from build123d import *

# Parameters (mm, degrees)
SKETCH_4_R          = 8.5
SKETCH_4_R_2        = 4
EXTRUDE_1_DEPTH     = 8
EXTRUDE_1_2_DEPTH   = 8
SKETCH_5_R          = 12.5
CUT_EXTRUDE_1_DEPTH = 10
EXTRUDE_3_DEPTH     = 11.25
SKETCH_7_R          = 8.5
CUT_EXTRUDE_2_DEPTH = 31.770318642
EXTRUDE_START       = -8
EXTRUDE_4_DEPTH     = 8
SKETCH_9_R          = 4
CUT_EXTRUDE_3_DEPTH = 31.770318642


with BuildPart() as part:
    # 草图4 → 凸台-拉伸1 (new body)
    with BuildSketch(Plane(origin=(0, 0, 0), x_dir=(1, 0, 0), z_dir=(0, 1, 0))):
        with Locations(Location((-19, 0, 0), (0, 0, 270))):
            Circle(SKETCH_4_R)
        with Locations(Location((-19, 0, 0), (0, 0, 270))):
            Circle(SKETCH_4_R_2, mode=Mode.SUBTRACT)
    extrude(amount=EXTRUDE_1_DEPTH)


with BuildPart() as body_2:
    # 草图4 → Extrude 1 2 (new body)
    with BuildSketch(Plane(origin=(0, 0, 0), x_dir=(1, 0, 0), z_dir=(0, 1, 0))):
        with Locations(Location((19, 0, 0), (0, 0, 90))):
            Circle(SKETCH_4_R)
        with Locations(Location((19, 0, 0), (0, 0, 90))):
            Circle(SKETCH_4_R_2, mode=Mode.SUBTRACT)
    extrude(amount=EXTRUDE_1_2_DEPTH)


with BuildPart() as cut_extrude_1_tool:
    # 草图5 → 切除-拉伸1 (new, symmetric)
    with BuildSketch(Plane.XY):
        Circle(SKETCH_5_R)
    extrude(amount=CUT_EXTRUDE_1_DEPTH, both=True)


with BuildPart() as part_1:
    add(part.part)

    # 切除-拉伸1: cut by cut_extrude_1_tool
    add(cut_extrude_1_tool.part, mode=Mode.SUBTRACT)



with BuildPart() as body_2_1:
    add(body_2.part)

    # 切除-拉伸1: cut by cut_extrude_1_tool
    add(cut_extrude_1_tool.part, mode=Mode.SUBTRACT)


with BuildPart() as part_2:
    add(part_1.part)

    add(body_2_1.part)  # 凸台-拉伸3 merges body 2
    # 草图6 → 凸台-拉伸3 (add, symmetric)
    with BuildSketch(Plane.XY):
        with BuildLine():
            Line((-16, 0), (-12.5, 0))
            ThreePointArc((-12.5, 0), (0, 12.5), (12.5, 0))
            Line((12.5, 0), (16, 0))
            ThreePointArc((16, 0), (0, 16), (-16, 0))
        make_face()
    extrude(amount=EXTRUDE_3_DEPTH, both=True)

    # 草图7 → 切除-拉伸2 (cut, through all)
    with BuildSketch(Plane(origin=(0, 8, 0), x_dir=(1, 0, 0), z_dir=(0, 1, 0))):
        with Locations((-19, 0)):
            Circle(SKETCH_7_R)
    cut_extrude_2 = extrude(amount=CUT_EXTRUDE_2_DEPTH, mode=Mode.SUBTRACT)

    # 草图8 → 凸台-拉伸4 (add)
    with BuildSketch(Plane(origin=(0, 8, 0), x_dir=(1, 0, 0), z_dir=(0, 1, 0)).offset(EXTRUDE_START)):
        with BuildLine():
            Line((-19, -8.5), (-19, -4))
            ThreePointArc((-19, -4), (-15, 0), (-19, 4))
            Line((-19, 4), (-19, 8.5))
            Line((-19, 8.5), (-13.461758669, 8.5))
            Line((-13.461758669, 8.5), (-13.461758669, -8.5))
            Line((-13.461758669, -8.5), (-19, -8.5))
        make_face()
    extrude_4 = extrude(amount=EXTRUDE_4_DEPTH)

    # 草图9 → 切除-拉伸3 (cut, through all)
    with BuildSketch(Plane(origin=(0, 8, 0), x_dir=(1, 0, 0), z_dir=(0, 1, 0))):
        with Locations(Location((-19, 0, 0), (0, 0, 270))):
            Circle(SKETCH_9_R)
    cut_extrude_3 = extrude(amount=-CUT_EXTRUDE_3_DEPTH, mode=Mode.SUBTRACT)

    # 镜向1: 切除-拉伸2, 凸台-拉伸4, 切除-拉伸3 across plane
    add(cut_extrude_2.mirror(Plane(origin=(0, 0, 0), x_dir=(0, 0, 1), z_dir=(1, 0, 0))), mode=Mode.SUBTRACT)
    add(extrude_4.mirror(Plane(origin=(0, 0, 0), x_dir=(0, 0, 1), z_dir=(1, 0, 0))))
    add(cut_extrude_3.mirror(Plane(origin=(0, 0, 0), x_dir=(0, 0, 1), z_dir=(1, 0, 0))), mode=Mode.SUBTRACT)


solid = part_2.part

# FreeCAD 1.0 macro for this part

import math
import FreeCAD as App
import Part
import Sketcher

V = App.Vector
Q = App.Units.Quantity

doc = App.newDocument("Part")
body = doc.addObject("PartDesign::Body", "Body")

# Sketch on XZ plane
sketch1 = body.newObject("Sketcher::SketchObject", "Sketch")
sketch1.AttachmentSupport = (doc.getObject("XZ_Plane"), [""])
sketch1.MapMode = "FlatFace"
sketch1.addGeometry(Part.Circle(V(-19, 0, 0), V(0, 0, 1), 8.5), False)
sketch1.addGeometry(Part.Circle(V(-19, 0, 0), V(0, 0, 1), 4), False)
sketch1.addConstraint(Sketcher.Constraint("Coincident", 1, 3, 0, 3))
sketch1.addConstraint(Sketcher.Constraint("PointOnObject", 0, 3, -1))
sketch1.addConstraint(Sketcher.Constraint("Diameter", 0, Q("17 mm")))
sketch1.addConstraint(Sketcher.Constraint("Diameter", 1, Q("8 mm")))
sketch1.addConstraint(Sketcher.Constraint("DistanceX", 0, 3, -1, 1, Q("19 mm")))
pad1 = body.newObject("PartDesign::Pad", "Pad")
pad1.Profile = sketch1
pad1.Length = 8
pad1.Reversed = True
body2 = doc.addObject("PartDesign::Body", "Body001")

# Sketch on XZ plane
sketch2 = body2.newObject("Sketcher::SketchObject", "Sketch001")
sketch2.AttachmentSupport = (doc.getObject("XZ_Plane001"), [""])
sketch2.MapMode = "FlatFace"
sketch2.addGeometry(Part.Circle(V(19, 0, 0), V(0, 0, 1), 8.5), False)
sketch2.addGeometry(Part.Circle(V(19, 0, 0), V(0, 0, 1), 4), False)
sketch2.addConstraint(Sketcher.Constraint("Coincident", 1, 3, 0, 3))
sketch2.addConstraint(Sketcher.Constraint("PointOnObject", 0, 3, -1))
sketch2.addConstraint(Sketcher.Constraint("Diameter", 0, Q("17 mm")))
sketch2.addConstraint(Sketcher.Constraint("Diameter", 1, Q("8 mm")))
sketch2.addConstraint(Sketcher.Constraint("DistanceX", -1, 1, 0, 3, Q("19 mm")))
pad2 = body2.newObject("PartDesign::Pad", "Pad001")
pad2.Profile = sketch2
pad2.Length = 8
pad2.Reversed = True
body3 = doc.addObject("PartDesign::Body", "Body002")

# Sketch on XY plane
sketch3 = body3.newObject("Sketcher::SketchObject", "Sketch002")
sketch3.AttachmentSupport = (doc.getObject("XY_Plane002"), [""])
sketch3.MapMode = "FlatFace"
sketch3.addGeometry(Part.Circle(V(0, 0, 0), V(0, 0, 1), 12), False)
sketch3.addConstraint(Sketcher.Constraint("Coincident", 0, 3, -1, 1))
sketch3.addConstraint(Sketcher.Constraint("Diameter", 0, Q("25 mm")))
pad3 = body3.newObject("PartDesign::Pad", "Pad002")
pad3.Profile = sketch3
pad3.Length = 20
pad3.Midplane = True
doc.recompute()

body4 = doc.addObject("PartDesign::Body", "Body003")
body4.BaseFeature = body3
boolean = body.newObject("PartDesign::Boolean", "Boolean")
boolean.Type = "Cut"
boolean.addObjects([body4])
doc.recompute()

boolean2 = body2.newObject("PartDesign::Boolean", "Boolean001")
boolean2.Type = "Cut"
boolean2.addObjects([body3])
body.AllowCompound = True
doc.recompute()

boolean3 = body.newObject("PartDesign::Boolean", "Boolean002")
boolean3.Type = "Fuse"
boolean3.addObjects([body2])

# Sketch on XY plane
sketch4 = body.newObject("Sketcher::SketchObject", "Sketch003")
sketch4.AttachmentSupport = (doc.getObject("XY_Plane"), [""])
sketch4.MapMode = "FlatFace"
sketch4.addGeometry(Part.LineSegment(V(-16, 0, 0), V(-12.5, 0, 0)), False)
sketch4.addGeometry(Part.ArcOfCircle(Part.Circle(V(0, 0, 0), V(0, 0, 1), 12.5), math.radians(0), math.radians(180)), False)
sketch4.addGeometry(Part.LineSegment(V(12.5, 0, 0), V(16, 0, 0)), False)
sketch4.addGeometry(Part.ArcOfCircle(Part.Circle(V(0, 0, 0), V(0, 0, 1), 16), math.radians(0), math.radians(180)), False)
sketch4.addConstraint(Sketcher.Constraint("Coincident", 0, 2, 1, 2))
sketch4.addConstraint(Sketcher.Constraint("Coincident", 1, 1, 2, 1))
sketch4.addConstraint(Sketcher.Constraint("Coincident", 2, 2, 3, 1))
sketch4.addConstraint(Sketcher.Constraint("Coincident", 3, 2, 0, 1))
sketch4.addConstraint(Sketcher.Constraint("Horizontal", 0))
sketch4.addConstraint(Sketcher.Constraint("Horizontal", 2))
sketch4.addConstraint(Sketcher.Constraint("Coincident", 1, 3, -1, 1))
sketch4.addConstraint(Sketcher.Constraint("Coincident", 3, 3, -1, 1))
sketch4.addConstraint(Sketcher.Constraint("PointOnObject", 0, 2, -1))
sketch4.addConstraint(Sketcher.Constraint("PointOnObject", 1, 1, -1))
sketch4.addConstraint(Sketcher.Constraint("Radius", 3, Q("16 mm")))
sketch4.addConstraint(Sketcher.Constraint("Radius", 1, Q("12.5 mm")))
pad4 = body.newObject("PartDesign::Pad", "Pad003")
pad4.Profile = sketch4
pad4.Length = 22.5
pad4.Midplane = True

# Sketch on XZ plane
sketch5 = body.newObject("Sketcher::SketchObject", "Sketch004")
sketch5.AttachmentSupport = (doc.getObject("XZ_Plane"), [""])
sketch5.MapMode = "FlatFace"
sketch5.AttachmentOffset = App.Placement(V(0, 0, -8), App.Rotation())
sketch5.addGeometry(Part.Circle(V(-19, 0, 0), V(0, 0, 1), 8), False)
sketch5.addConstraint(Sketcher.Constraint("PointOnObject", 0, 3, -1))
sketch5.addConstraint(Sketcher.Constraint("Diameter", 0, Q("17 mm")))
sketch5.addConstraint(Sketcher.Constraint("DistanceX", 0, 3, -1, 1, Q("19 mm")))
pocket1 = body.newObject("PartDesign::Pocket", "Pocket")
pocket1.Profile = sketch5
pocket1.Type = "ThroughAll"

# Sketch on XZ plane
sketch6 = body.newObject("Sketcher::SketchObject", "Sketch005")
sketch6.AttachmentSupport = (doc.getObject("XZ_Plane"), [""])
sketch6.MapMode = "FlatFace"
sketch6.addGeometry(Part.LineSegment(V(-19, 4, 0), V(-19, 8.5, 0)), False)
sketch6.addGeometry(Part.LineSegment(V(-19, 8.5, 0), V(-13.5, 8.5, 0)), False)
sketch6.addGeometry(Part.LineSegment(V(-13.5, 8.5, 0), V(-13.5, -8.5, 0)), False)
sketch6.addGeometry(Part.LineSegment(V(-13.5, -8.5, 0), V(-19, -8.5, 0)), False)
sketch6.addGeometry(Part.LineSegment(V(-19, -8.5, 0), V(-19, -4, 0)), False)
sketch6.addGeometry(Part.ArcOfCircle(Part.Circle(V(-19, 0, 0), V(0, 0, 1), 4), math.radians(-90), math.radians(90)), False)
sketch6.addConstraint(Sketcher.Constraint("Coincident", 0, 2, 1, 1))
sketch6.addConstraint(Sketcher.Constraint("Coincident", 1, 2, 2, 1))
sketch6.addConstraint(Sketcher.Constraint("Coincident", 2, 2, 3, 1))
sketch6.addConstraint(Sketcher.Constraint("Coincident", 3, 2, 4, 1))
sketch6.addConstraint(Sketcher.Constraint("Coincident", 4, 2, 5, 1))
sketch6.addConstraint(Sketcher.Constraint("Coincident", 5, 2, 0, 1))
sketch6.addConstraint(Sketcher.Constraint("Vertical", 0))
sketch6.addConstraint(Sketcher.Constraint("Horizontal", 1))
sketch6.addConstraint(Sketcher.Constraint("Vertical", 2))
sketch6.addConstraint(Sketcher.Constraint("Horizontal", 3))
sketch6.addConstraint(Sketcher.Constraint("Vertical", 4))
sketch6.addConstraint(Sketcher.Constraint("Symmetric", 0, 2, 3, 2, -1))
sketch6.addConstraint(Sketcher.Constraint("PointOnObject", 5, 3, -1))
sketch6.addConstraint(Sketcher.Constraint("Vertical", 5, 3, 0, 2))
sketch6.addConstraint(Sketcher.Constraint("Radius", 5, Q("4 mm")))
sketch6.addConstraint(Sketcher.Constraint("DistanceY", 2, 2, 2, 1, Q("17 mm")))
sketch6.addConstraint(Sketcher.Constraint("DistanceX", 5, 3, -1, 1, Q("19 mm")))
sketch6.addConstraint(Sketcher.Constraint("DistanceX", 1, 1, 1, 2, Q("5.538241 mm")))
pad5 = body.newObject("PartDesign::Pad", "Pad004")
pad5.Profile = sketch6
pad5.Length = 8
pad5.Reversed = True

# Sketch on XZ plane
sketch7 = body.newObject("Sketcher::SketchObject", "Sketch006")
sketch7.AttachmentSupport = (doc.getObject("XZ_Plane"), [""])
sketch7.MapMode = "FlatFace"
sketch7.AttachmentOffset = App.Placement(V(0, 0, -8), App.Rotation())
sketch7.addGeometry(Part.Circle(V(-19, 0, 0), V(0, 0, 1), 4), False)
sketch7.addConstraint(Sketcher.Constraint("PointOnObject", 0, 3, -1))
sketch7.addConstraint(Sketcher.Constraint("Diameter", 0, Q("8 mm")))
sketch7.addConstraint(Sketcher.Constraint("DistanceX", 0, 3, -1, 1, Q("19 mm")))
pocket2 = body.newObject("PartDesign::Pocket", "Pocket001")
pocket2.Profile = sketch7
pocket2.Type = "ThroughAll"
pocket2.Reversed = True
doc.recompute()

mirrored = body.newObject("PartDesign::Mirrored", "Mirrored")
mirrored.Originals = [pocket1, pad5, pocket2]
mirrored.MirrorPlane = (doc.getObject("YZ_Plane"), [""])
body.Tip = mirrored

doc.recompute()
